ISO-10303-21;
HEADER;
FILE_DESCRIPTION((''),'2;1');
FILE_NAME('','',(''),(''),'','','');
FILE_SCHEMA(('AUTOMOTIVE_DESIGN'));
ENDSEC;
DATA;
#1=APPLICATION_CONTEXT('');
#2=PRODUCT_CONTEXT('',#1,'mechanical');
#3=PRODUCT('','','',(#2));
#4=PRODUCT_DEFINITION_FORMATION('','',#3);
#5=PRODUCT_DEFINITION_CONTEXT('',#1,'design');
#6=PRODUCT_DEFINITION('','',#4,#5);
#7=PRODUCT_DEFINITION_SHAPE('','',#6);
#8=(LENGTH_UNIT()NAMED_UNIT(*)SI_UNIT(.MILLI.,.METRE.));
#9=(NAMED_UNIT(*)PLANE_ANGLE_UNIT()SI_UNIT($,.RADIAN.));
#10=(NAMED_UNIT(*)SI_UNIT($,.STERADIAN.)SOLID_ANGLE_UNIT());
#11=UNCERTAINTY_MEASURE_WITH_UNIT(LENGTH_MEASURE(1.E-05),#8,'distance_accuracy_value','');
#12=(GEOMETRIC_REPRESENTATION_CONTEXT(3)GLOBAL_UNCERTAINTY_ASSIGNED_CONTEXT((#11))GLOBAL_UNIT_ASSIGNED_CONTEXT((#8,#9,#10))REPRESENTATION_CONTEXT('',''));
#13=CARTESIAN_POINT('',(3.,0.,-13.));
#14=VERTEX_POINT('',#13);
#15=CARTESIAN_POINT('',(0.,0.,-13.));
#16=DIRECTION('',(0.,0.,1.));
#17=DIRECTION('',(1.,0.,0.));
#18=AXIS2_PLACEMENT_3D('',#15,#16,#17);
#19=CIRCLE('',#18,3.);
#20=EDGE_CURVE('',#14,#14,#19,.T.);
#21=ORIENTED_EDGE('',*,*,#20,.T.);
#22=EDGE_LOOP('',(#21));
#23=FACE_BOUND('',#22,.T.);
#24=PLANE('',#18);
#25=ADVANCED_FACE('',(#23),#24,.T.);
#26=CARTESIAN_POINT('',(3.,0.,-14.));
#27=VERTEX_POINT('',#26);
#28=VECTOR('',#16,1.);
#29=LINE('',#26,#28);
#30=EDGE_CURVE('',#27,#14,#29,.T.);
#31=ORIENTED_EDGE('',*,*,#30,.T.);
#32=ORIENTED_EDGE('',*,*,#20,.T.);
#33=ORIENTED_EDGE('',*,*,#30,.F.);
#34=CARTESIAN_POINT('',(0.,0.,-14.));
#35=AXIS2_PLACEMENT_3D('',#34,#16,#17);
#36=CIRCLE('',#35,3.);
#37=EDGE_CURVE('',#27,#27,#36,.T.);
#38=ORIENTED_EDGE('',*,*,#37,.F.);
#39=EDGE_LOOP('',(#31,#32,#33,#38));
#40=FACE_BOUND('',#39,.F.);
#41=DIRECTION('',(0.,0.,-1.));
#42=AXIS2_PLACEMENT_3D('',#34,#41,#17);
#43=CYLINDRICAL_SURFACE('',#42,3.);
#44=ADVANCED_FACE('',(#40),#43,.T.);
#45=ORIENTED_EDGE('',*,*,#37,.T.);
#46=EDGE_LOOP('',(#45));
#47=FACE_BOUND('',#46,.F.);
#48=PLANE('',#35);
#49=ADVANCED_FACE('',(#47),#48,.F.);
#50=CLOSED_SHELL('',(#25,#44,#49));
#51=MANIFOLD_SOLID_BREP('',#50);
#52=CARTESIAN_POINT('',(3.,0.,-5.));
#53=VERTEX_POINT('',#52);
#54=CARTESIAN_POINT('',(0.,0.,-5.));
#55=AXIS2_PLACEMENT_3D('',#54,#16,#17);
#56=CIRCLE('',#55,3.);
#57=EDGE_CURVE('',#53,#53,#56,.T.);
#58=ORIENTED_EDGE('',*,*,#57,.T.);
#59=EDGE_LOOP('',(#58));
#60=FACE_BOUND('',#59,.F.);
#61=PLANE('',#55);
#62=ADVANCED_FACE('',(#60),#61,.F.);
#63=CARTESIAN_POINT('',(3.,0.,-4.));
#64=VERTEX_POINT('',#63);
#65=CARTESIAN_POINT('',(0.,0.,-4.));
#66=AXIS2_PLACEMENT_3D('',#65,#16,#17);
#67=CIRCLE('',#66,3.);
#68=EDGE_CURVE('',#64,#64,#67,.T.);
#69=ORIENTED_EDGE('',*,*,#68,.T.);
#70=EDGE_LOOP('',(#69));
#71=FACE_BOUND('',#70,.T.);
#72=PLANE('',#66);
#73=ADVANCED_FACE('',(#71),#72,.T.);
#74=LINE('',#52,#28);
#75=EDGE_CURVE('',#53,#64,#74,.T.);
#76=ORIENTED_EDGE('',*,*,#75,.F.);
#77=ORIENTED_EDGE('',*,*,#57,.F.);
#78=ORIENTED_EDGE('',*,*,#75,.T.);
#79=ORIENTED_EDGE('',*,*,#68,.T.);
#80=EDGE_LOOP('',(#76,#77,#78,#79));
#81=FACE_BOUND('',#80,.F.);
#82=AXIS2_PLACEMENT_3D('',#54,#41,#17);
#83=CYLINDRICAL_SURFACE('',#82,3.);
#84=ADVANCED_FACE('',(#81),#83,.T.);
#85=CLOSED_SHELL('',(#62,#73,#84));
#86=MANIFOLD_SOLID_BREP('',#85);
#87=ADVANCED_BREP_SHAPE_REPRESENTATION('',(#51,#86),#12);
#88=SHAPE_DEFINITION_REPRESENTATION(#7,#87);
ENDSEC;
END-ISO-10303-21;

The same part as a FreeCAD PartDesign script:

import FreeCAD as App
import Part
import Sketcher

V = App.Vector
Q = App.Units.Quantity

doc = App.newDocument("Part")
body = doc.addObject("PartDesign::Body", "Body")

# Sketch on XY plane
sketch1 = doc.addObject("Sketcher::SketchObject", "Sketch")
body.addObject(sketch1)
sketch1.AttachmentSupport = (doc.XY_Plane, [""])
sketch1.MapMode = "FlatFace"
sketch1.AttachmentOffset = App.Placement(V(0, 0, -5), App.Rotation())
sketch1.addGeometry(Part.Circle(V(0, 0, 0), V(0, 0, 1), 3), False)
sketch1.addConstraint(Sketcher.Constraint("Coincident", 0, 3, -1, 1))
sketch1.addConstraint(Sketcher.Constraint("Diameter", 0, Q("6 mm")))
pad1 = doc.addObject("PartDesign::Pad", "Pad")
body.addObject(pad1)
pad1.Profile = sketch1
pad1.Length = 1
body2 = doc.addObject("PartDesign::Body", "Body001")
body2.AllowCompound = True

# Sketch on XY plane
sketch2 = doc.addObject("Sketcher::SketchObject", "Sketch001")
body2.addObject(sketch2)
sketch2.AttachmentSupport = (doc.getObject("XY_Plane001"), [""])
sketch2.MapMode = "FlatFace"
sketch2.AttachmentOffset = App.Placement(V(0, 0, -14), App.Rotation())
sketch2.addGeometry(Part.Circle(V(0, 0, 0), V(0, 0, 1), 3), False)
sketch2.addConstraint(Sketcher.Constraint("Coincident", 0, 3, -1, 1))
sketch2.addConstraint(Sketcher.Constraint("Diameter", 0, Q("6 mm")))
pad2 = doc.addObject("PartDesign::Pad", "Pad001")
body2.addObject(pad2)
pad2.Profile = sketch2
pad2.Length = 1
doc.recompute()

boolean = doc.addObject("PartDesign::Boolean", "Boolean")
body2.addObject(boolean)
boolean.Type = "Fuse"
boolean.addObjects([body])

doc.recompute()
